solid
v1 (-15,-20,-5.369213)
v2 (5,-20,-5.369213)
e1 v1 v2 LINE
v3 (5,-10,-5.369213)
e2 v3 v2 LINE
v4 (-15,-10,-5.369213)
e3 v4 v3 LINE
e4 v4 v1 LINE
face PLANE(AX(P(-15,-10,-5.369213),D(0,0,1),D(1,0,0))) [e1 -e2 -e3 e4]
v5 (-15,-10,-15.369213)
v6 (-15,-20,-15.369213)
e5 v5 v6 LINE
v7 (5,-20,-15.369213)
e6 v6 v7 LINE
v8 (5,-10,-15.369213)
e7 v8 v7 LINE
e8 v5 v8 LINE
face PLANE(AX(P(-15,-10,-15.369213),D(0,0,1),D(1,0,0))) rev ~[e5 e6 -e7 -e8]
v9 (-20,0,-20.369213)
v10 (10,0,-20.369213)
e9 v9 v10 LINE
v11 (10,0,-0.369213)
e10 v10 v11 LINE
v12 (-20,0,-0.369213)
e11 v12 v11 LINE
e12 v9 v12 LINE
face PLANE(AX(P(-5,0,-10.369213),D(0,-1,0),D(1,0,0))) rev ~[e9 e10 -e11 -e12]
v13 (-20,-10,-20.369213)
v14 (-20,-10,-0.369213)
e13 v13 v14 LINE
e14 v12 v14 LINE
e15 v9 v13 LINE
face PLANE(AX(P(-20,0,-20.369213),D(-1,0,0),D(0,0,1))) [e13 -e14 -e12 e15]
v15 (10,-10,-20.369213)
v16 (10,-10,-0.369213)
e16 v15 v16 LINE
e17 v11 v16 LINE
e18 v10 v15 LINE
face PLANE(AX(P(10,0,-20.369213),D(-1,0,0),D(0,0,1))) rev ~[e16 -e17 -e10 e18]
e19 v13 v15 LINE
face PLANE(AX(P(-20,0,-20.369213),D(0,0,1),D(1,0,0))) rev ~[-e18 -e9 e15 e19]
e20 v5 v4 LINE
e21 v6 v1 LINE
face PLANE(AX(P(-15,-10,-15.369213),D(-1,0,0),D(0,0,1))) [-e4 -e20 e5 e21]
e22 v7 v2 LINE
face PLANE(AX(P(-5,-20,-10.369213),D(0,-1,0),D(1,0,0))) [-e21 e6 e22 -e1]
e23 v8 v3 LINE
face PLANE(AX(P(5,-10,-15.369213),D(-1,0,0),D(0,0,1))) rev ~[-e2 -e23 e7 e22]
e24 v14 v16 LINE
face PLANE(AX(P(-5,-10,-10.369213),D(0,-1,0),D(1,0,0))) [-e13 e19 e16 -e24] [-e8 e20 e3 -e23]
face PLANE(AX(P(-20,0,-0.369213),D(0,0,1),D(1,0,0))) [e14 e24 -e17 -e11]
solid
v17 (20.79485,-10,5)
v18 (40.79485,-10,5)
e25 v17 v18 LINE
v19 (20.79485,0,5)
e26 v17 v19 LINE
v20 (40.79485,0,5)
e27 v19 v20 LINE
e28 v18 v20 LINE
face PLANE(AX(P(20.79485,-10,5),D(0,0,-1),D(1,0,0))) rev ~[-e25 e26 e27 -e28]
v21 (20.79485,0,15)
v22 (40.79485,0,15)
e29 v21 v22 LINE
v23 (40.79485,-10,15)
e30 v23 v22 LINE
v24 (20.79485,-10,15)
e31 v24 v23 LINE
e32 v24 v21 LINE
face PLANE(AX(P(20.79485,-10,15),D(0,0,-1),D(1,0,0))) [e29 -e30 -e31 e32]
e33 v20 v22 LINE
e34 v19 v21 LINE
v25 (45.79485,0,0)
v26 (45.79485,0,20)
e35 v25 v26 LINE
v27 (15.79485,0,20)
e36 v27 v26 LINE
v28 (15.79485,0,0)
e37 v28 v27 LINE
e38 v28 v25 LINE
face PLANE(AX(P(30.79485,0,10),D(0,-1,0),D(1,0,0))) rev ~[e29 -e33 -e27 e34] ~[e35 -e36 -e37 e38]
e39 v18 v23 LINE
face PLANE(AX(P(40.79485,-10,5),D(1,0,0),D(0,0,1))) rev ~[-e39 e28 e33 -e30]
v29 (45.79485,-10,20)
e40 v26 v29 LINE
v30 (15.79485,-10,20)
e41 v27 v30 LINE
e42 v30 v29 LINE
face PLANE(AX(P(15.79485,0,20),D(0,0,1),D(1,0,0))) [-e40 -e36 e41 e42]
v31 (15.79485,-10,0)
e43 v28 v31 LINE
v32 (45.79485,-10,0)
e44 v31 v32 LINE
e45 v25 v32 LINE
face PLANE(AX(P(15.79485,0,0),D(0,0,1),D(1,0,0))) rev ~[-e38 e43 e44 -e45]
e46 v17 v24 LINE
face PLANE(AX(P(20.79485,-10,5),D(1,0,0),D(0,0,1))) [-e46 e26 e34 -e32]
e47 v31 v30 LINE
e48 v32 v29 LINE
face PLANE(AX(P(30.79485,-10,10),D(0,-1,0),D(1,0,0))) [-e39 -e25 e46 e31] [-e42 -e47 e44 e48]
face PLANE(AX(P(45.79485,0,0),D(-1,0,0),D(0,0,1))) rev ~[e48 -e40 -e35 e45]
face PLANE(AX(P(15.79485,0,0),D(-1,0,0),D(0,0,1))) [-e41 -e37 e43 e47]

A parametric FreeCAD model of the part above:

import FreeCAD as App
import Part
import Sketcher
from FreeCAD import Vector
Q = App.Units.Quantity


def add_polygon(sketch, points):
    """Adds a closed chain of lines whose ends are joined by coincident constraints."""
    first, n = sketch.GeometryCount, len(points)
    for a, b in zip(points, points[1:] + points[:1]):
        sketch.addGeometry(Part.LineSegment(App.Vector(*a, 0), App.Vector(*b, 0)), False)
    for i in range(n):
        sketch.addConstraint(Sketcher.Constraint("Coincident", first + i, 2, first + (i + 1) % n, 1))

doc = App.newDocument("Part")
body = doc.addObject("PartDesign::Body", "Body")

sketch1 = body.newObject("Sketcher::SketchObject", "Sketch")
sketch1.AttachmentSupport = (doc.getObject("XZ_Plane"), [""])
sketch1.MapMode = "FlatFace"
add_polygon(sketch1, [(-20, 0), (-20, -20), (10, -20), (10, 0)])
sketch1.addConstraint([
    Sketcher.Constraint("Vertical", 0),
    Sketcher.Constraint("Horizontal", 1),
    Sketcher.Constraint("Vertical", 2),
    Sketcher.Constraint("Horizontal", 3),
    Sketcher.Constraint("DistanceX", 1, 1, 1, 2, Q("30 mm")),
    Sketcher.Constraint("DistanceY", 0, 2, 0, 1, Q("20 mm")),
    Sketcher.Constraint("DistanceX", 0, 2, -1, 1, Q("20 mm")),
    Sketcher.Constraint("DistanceY", 0, 2, -1, 1, Q("20.369213 mm")),
])
pad1 = body.newObject("PartDesign::Pad", "Pad")
pad1.Profile = sketch1
pad1.Length = 10

sketch2 = body.newObject("Sketcher::SketchObject", "Sketch001")
sketch2.AttachmentSupport = (doc.getObject("XZ_Plane"), [""])
sketch2.MapMode = "FlatFace"
sketch2.AttachmentOffset = App.Placement(Vector(0, 0, 10), App.Rotation())
add_polygon(sketch2, [(-15, -5), (-15, -15), (5, -15), (5, -5)])
sketch2.addConstraint([
    Sketcher.Constraint("Vertical", 0),
    Sketcher.Constraint("Horizontal", 1),
    Sketcher.Constraint("Vertical", 2),
    Sketcher.Constraint("Horizontal", 3),
    Sketcher.Constraint("DistanceX", 1, 1, 1, 2, Q("20 mm")),
    Sketcher.Constraint("DistanceY", 0, 2, 0, 1, Q("10 mm")),
    Sketcher.Constraint("DistanceX", 0, 2, -1, 1, Q("15 mm")),
    Sketcher.Constraint("DistanceY", 0, 2, -1, 1, Q("15.369213 mm")),
])
pad2 = body.newObject("PartDesign::Pad", "Pad001")
pad2.Profile = sketch2
pad2.Length = 10
body2 = doc.addObject("PartDesign::Body", "Body001")

sketch3 = body2.newObject("Sketcher::SketchObject", "Sketch002")
sketch3.AttachmentSupport = (doc.getObject("XZ_Plane001"), [""])
sketch3.MapMode = "FlatFace"
add_polygon(sketch3, [(16, 20), (16, 0), (46, 0), (46, 20)])
sketch3.addConstraint([
    Sketcher.Constraint("Vertical", 0),
    Sketcher.Constraint("Horizontal", 1),
    Sketcher.Constraint("Vertical", 2),
    Sketcher.Constraint("Horizontal", 3),
    Sketcher.Constraint("PointOnObject", 0, 2, -1),
    Sketcher.Constraint("DistanceX", 1, 1, 1, 2, Q("30 mm")),
    Sketcher.Constraint("DistanceY", 0, 2, 0, 1, Q("20 mm")),
    Sketcher.Constraint("DistanceX", -1, 1, 0, 2, Q("15.79485 mm")),
])
pad3 = body2.newObject("PartDesign::Pad", "Pad002")
pad3.Profile = sketch3
pad3.Length = 10

sketch4 = body2.newObject("Sketcher::SketchObject", "Sketch003")
sketch4.AttachmentSupport = (doc.getObject("XZ_Plane001"), [""])
sketch4.MapMode = "FlatFace"
sketch4.AttachmentOffset = App.Placement(Vector(0, 0, 10), App.Rotation())
add_polygon(sketch4, [(21, 15), (21, 5), (41, 5), (41, 15)])
sketch4.addConstraint([
    Sketcher.Constraint("Vertical", 0),
    Sketcher.Constraint("Horizontal", 1),
    Sketcher.Constraint("Vertical", 2),
    Sketcher.Constraint("Horizontal", 3),
    Sketcher.Constraint("DistanceX", 1, 1, 1, 2, Q("20 mm")),
    Sketcher.Constraint("DistanceY", 0, 2, 0, 1, Q("10 mm")),
    Sketcher.Constraint("DistanceY", -1, 1, 0, 2, Q("5 mm")),
    Sketcher.Constraint("DistanceX", -1, 1, 0, 2, Q("20.79485 mm")),
])
pocket1 = body2.newObject("PartDesign::Pocket", "Pocket")
pocket1.Profile = sketch4
pocket1.Length = 10

doc.recompute()
